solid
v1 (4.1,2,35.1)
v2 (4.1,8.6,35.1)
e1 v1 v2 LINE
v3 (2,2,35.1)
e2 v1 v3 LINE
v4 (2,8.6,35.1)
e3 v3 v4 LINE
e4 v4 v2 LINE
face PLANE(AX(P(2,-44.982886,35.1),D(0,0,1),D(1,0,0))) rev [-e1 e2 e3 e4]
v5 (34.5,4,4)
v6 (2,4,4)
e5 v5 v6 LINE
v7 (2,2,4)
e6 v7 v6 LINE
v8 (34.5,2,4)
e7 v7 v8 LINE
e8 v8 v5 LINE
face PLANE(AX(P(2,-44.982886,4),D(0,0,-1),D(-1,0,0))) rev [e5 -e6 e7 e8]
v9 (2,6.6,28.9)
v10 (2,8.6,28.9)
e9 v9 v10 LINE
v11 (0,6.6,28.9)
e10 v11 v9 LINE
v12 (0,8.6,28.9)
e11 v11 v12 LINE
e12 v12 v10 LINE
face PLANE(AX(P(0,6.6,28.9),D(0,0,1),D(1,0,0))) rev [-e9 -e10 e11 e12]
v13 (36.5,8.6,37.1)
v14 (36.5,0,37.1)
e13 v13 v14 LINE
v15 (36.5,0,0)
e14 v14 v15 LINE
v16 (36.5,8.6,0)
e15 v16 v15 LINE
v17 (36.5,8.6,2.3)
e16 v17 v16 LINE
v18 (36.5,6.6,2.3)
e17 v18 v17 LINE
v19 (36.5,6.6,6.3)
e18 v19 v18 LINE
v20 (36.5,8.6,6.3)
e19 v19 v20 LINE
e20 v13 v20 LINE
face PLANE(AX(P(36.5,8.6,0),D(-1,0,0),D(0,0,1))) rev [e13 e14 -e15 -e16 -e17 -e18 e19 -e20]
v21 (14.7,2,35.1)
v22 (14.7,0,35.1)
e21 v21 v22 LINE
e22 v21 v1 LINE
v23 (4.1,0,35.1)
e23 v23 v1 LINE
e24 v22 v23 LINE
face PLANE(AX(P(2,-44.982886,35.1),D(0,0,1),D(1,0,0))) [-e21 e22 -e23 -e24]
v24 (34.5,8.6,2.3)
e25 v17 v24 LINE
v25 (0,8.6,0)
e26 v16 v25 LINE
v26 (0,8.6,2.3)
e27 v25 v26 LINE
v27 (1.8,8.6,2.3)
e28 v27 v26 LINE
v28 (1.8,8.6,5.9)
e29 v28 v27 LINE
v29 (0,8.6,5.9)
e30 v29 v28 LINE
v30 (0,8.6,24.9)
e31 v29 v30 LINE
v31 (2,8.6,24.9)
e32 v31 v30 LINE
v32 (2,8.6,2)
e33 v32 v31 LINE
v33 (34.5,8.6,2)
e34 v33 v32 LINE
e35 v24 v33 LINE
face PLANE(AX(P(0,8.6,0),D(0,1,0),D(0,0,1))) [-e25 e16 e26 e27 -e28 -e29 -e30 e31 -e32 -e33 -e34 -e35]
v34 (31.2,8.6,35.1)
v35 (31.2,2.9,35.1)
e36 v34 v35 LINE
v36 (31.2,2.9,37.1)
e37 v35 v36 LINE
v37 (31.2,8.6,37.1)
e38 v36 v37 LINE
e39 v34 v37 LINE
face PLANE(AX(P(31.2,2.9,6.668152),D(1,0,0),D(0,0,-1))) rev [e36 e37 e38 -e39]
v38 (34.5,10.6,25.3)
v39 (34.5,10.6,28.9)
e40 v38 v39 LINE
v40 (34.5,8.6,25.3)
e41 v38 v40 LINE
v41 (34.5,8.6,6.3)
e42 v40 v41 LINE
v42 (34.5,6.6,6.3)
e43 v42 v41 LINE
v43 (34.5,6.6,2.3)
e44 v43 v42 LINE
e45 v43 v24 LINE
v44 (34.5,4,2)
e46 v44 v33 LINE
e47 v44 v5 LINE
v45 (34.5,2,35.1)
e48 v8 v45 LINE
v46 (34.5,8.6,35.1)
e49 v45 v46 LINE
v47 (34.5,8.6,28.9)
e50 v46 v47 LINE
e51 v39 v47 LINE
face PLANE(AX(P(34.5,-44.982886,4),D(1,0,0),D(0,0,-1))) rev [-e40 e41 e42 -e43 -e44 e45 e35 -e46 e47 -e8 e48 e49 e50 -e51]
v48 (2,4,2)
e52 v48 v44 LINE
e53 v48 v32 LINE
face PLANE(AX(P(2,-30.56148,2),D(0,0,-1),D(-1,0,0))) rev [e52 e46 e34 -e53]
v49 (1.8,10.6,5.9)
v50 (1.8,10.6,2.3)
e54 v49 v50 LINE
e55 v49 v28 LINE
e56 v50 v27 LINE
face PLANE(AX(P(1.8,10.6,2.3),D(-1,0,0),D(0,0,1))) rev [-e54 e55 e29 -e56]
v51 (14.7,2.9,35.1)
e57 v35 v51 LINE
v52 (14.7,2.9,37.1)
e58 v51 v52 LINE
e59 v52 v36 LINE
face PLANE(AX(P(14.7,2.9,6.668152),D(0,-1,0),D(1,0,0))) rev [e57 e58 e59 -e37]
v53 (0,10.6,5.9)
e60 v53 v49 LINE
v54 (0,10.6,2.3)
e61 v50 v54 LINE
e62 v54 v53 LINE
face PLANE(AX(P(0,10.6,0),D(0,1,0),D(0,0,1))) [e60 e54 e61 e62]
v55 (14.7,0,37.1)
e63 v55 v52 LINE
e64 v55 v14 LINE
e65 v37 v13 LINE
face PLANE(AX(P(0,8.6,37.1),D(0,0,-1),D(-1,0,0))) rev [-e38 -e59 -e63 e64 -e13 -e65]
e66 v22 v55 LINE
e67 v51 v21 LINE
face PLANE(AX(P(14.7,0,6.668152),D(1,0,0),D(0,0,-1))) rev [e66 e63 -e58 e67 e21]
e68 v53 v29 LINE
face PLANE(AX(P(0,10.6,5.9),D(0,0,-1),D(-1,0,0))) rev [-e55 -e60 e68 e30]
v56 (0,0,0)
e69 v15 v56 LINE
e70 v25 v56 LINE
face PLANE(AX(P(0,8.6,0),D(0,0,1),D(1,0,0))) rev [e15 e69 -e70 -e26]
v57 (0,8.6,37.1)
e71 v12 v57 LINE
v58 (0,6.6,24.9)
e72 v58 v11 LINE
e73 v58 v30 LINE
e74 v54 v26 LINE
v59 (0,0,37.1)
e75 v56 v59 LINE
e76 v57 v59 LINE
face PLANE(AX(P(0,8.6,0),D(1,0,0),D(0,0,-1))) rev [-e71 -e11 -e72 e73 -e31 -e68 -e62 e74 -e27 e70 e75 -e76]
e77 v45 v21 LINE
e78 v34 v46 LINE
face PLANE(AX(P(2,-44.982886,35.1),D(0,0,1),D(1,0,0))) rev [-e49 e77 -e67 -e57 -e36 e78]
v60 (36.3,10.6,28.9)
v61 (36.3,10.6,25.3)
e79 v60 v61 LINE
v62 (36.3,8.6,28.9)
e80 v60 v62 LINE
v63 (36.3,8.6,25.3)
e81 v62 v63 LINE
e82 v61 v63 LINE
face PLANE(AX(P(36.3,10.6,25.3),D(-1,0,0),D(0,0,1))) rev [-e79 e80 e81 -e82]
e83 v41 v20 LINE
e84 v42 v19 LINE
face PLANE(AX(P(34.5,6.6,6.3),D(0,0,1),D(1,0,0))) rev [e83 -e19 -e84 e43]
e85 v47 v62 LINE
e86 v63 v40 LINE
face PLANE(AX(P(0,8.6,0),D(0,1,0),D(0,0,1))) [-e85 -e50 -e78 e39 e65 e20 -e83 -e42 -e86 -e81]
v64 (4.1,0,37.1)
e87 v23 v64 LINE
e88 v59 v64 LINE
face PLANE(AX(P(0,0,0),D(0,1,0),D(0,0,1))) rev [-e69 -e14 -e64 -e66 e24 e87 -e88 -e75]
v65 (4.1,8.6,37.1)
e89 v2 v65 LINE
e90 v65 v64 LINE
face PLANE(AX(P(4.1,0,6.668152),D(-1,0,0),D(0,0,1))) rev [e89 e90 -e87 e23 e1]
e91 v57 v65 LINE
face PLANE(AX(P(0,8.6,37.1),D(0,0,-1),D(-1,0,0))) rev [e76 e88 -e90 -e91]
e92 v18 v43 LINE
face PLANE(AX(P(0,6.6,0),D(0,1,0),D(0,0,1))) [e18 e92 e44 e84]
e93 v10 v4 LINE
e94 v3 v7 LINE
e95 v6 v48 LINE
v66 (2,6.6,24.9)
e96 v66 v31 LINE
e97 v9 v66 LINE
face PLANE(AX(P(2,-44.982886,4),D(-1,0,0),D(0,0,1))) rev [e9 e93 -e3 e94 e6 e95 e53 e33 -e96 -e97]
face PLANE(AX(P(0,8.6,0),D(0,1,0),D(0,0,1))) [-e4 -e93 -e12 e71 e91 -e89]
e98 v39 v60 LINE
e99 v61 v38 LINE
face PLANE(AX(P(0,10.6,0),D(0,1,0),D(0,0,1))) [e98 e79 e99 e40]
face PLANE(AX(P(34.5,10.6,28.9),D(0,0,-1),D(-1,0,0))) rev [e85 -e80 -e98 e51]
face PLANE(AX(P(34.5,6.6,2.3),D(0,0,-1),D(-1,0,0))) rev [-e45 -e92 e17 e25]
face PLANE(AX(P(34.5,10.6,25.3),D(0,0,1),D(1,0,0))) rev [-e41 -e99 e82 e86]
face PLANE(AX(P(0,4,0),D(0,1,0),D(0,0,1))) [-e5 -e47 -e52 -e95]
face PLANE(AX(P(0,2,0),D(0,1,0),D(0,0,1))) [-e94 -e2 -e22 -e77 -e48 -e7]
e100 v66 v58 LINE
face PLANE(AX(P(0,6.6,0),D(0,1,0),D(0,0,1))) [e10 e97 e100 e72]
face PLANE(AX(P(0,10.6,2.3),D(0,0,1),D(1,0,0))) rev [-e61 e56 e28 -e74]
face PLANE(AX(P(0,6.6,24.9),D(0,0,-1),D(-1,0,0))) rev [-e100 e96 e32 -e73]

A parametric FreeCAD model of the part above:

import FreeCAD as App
import Part
import Sketcher

V = App.Vector


def add_polygon(sketch, points):
    """Adds a closed chain of lines whose ends are joined by coincident constraints."""
    first, n = sketch.GeometryCount, len(points)
    for a, b in zip(points, points[1:] + points[:1]):
        sketch.addGeometry(Part.LineSegment(App.Vector(*a, 0), App.Vector(*b, 0)), False)
    for i in range(n):
        sketch.addConstraint(Sketcher.Constraint("Coincident", first + i, 2, first + (i + 1) % n, 1))

doc = App.newDocument("Part")
body = doc.addObject("PartDesign::Body", "Body")

# Sketch on XZ plane
sketch1 = body.newObject("Sketcher::SketchObject", "Sketch")
sketch1.AttachmentSupport = (doc.getObject("XZ_Plane"), [""])
sketch1.MapMode = "FlatFace"
add_polygon(sketch1, [(0, 0), (0, 37), (36, 37), (36, 0)])  # lines 0-3
sketch1.addConstraint([
    Sketcher.Constraint("Vertical", 0),
    Sketcher.Constraint("Horizontal", 1),
    Sketcher.Constraint("Vertical", 2),
    Sketcher.Constraint("Horizontal", 3),
    Sketcher.Constraint("Coincident", 3, 2, -1, 1),
    Sketcher.Constraint("DistanceX", 1, 1, 1, 2, 36.5),
    Sketcher.Constraint("DistanceY", 0, 1, 0, 2, 37.1),
])
pad1 = body.newObject("PartDesign::Pad", "Pad")
pad1.Profile = sketch1
pad1.Length = 8.6
pad1.Reversed = True

# Sketch on XZ plane
sketch2 = body.newObject("Sketcher::SketchObject", "Sketch001")
sketch2.AttachmentSupport = (doc.getObject("XZ_Plane"), [""])
sketch2.MapMode = "FlatFace"
sketch2.AttachmentOffset = App.Placement(V(0, 0, -8.6), App.Rotation())
add_polygon(sketch2, [(2, 4), (2, 35), (34, 35), (34, 4)])  # lines 0-3
sketch2.addConstraint([
    Sketcher.Constraint("Vertical", 0),
    Sketcher.Constraint("Horizontal", 1),
    Sketcher.Constraint("Vertical", 2),
    Sketcher.Constraint("Horizontal", 3),
    Sketcher.Constraint("DistanceX", 1, 1, 1, 2, 32.5),
    Sketcher.Constraint("DistanceY", 0, 1, 0, 2, 31.1),
    Sketcher.Constraint("DistanceX", -1, 1, 0, 2, 2.0),
    Sketcher.Constraint("DistanceY", -1, 1, 2, 2, 4.0),
])
pocket1 = body.newObject("PartDesign::Pocket", "Pocket")
pocket1.Profile = sketch2
pocket1.Length = 6.6
pocket1.Reversed = True

# Sketch on XZ plane
sketch3 = body.newObject("Sketcher::SketchObject", "Sketch002")
sketch3.AttachmentSupport = (doc.getObject("XZ_Plane"), [""])
sketch3.MapMode = "FlatFace"
sketch3.AttachmentOffset = App.Placement(V(0, 0, -8.6), App.Rotation())
add_polygon(sketch3, [(2, 2), (2, 4), (34.5, 4), (34.5, 2)])  # lines 0-3
sketch3.addConstraint([
    Sketcher.Constraint("Vertical", 0),
    Sketcher.Constraint("Horizontal", 1),
    Sketcher.Constraint("Vertical", 2),
    Sketcher.Constraint("Horizontal", 3),
    Sketcher.Constraint("DistanceY", 0, 1, 0, 2, 2.0),
    Sketcher.Constraint("DistanceX", 1, 1, 1, 2, 32.5),
    Sketcher.Constraint("DistanceX", -1, 1, 0, 2, 2.0),
    Sketcher.Constraint("DistanceY", -1, 1, 0, 2, 4.0),
])
pocket2 = body.newObject("PartDesign::Pocket", "Pocket001")
pocket2.Profile = sketch3
pocket2.Length = 4.6
pocket2.Reversed = True

# Sketch on XY plane
sketch4 = body.newObject("Sketcher::SketchObject", "Sketch003")
sketch4.AttachmentSupport = (doc.getObject("XY_Plane"), [""])
sketch4.MapMode = "FlatFace"
sketch4.AttachmentOffset = App.Placement(V(0, 0, 37.1), App.Rotation())
add_polygon(sketch4, [(31.2, 2.9), (31.2, 8.6), (4.1, 8.6), (4.1, 0), (14.7, 0), (14.7, 2.9)])  # lines 0-5
sketch4.addConstraint([
    Sketcher.Constraint("Vertical", 0),
    Sketcher.Constraint("Horizontal", 1),
    Sketcher.Constraint("Vertical", 2),
    Sketcher.Constraint("Horizontal", 3),
    Sketcher.Constraint("Vertical", 4),
    Sketcher.Constraint("Horizontal", 5),
    Sketcher.Constraint("PointOnObject", 2, 2, -1),
    Sketcher.Constraint("DistanceX", 1, 2, 1, 1, 27.1),
    Sketcher.Constraint("DistanceX", 3, 1, 3, 2, 10.6),
    Sketcher.Constraint("DistanceY", 0, 1, 0, 2, 5.7),
    Sketcher.Constraint("DistanceY", 2, 2, 2, 1, 8.6),
    Sketcher.Constraint("DistanceX", -1, 1, 0, 2, 31.2),
])
pocket3 = body.newObject("PartDesign::Pocket", "Pocket002")
pocket3.Profile = sketch4
pocket3.Length = 2

# Sketch on XZ plane
sketch5 = body.newObject("Sketcher::SketchObject", "Sketch004")
sketch5.AttachmentSupport = (doc.getObject("XZ_Plane"), [""])
sketch5.MapMode = "FlatFace"
sketch5.AttachmentOffset = App.Placement(V(0, 0, -8.6), App.Rotation())
add_polygon(sketch5, [(34.5, 25.3), (34.5, 28.9), (36.3, 28.9), (36.3, 25.3)])  # lines 0-3
add_polygon(sketch5, [(0, 2.3), (0, 5.9), (1.8, 5.9), (1.8, 2.3)])  # lines 4-7
sketch5.addConstraint([
    Sketcher.Constraint("Vertical", 0),
    Sketcher.Constraint("Horizontal", 1),
    Sketcher.Constraint("Vertical", 2),
    Sketcher.Constraint("Horizontal", 3),
    Sketcher.Constraint("Vertical", 4),
    Sketcher.Constraint("Horizontal", 5),
    Sketcher.Constraint("Vertical", 6),
    Sketcher.Constraint("Horizontal", 7),
    Sketcher.Constraint("PointOnObject", 4, 2, -2),
    Sketcher.Constraint("Equal", 3, 5),
    Sketcher.Constraint("Equal", 2, 4),
    Sketcher.Constraint("DistanceX", 1, 1, 1, 2, 1.8),
    Sketcher.Constraint("DistanceY", 0, 1, 0, 2, 3.6),
    Sketcher.Constraint("DistanceY", 4, 2, 0, 2, 23.0),
    Sketcher.Constraint("DistanceX", -1, 1, 0, 2, 34.5),
    Sketcher.Constraint("DistanceY", -1, 1, 0, 2, 28.9),
])
pad2 = body.newObject("PartDesign::Pad", "Pad001")
pad2.Profile = sketch5
pad2.Length = 2
pad2.Reversed = True

# Sketch on XZ plane
sketch6 = body.newObject("Sketcher::SketchObject", "Sketch005")
sketch6.AttachmentSupport = (doc.getObject("XZ_Plane"), [""])
sketch6.MapMode = "FlatFace"
sketch6.AttachmentOffset = App.Placement(V(0, 0, -8.6), App.Rotation())
add_polygon(sketch6, [(34.5, 2.3), (34.5, 6.3), (36.5, 6.3), (36.5, 2.3)])  # lines 0-3
add_polygon(sketch6, [(0, 24.9), (0, 28.9), (2, 28.9), (2, 24.9)])  # lines 4-7
sketch6.addConstraint([
    Sketcher.Constraint("Vertical", 0),
    Sketcher.Constraint("Horizontal", 1),
    Sketcher.Constraint("Vertical", 2),
    Sketcher.Constraint("Horizontal", 3),
    Sketcher.Constraint("Vertical", 4),
    Sketcher.Constraint("Horizontal", 5),
    Sketcher.Constraint("Vertical", 6),
    Sketcher.Constraint("Horizontal", 7),
    Sketcher.Constraint("PointOnObject", 4, 2, -2),
    Sketcher.Constraint("Equal", 3, 5),
    Sketcher.Constraint("Equal", 2, 4),
    Sketcher.Constraint("DistanceX", 1, 1, 1, 2, 2.0),
    Sketcher.Constraint("DistanceY", 0, 1, 0, 2, 4.0),
    Sketcher.Constraint("DistanceX", -1, 1, 0, 2, 34.5),
    Sketcher.Constraint("DistanceY", -1, 1, 0, 2, 6.3),
    Sketcher.Constraint("DistanceY", -1, 1, 4, 2, 28.9),
])
pocket4 = body.newObject("PartDesign::Pocket", "Pocket003")
pocket4.Profile = sketch6
pocket4.Length = 2
pocket4.Reversed = True

doc.recompute()
